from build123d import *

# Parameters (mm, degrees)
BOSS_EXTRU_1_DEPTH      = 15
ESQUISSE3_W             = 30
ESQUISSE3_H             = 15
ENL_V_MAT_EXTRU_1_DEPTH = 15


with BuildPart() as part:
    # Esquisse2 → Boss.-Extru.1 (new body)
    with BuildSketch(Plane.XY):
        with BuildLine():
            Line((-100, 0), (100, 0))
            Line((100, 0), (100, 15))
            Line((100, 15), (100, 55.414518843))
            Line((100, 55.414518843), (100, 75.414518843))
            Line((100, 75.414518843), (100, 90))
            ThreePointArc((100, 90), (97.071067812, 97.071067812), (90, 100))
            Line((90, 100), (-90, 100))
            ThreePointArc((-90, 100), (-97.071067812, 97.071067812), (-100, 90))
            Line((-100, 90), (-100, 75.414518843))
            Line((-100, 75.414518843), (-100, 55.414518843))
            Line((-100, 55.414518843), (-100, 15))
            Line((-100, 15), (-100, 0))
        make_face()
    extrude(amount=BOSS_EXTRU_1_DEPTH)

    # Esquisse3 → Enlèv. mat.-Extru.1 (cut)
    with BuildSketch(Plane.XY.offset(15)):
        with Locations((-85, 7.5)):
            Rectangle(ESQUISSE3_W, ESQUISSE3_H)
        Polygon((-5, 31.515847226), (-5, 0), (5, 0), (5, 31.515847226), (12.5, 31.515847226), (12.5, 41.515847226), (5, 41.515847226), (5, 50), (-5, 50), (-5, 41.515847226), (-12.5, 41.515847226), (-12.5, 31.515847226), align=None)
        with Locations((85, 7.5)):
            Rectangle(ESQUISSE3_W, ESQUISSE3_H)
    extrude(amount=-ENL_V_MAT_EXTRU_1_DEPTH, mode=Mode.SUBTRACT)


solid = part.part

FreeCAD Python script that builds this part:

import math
import FreeCAD as App
import Part
import Sketcher

doc = App.newDocument("Part")
body = doc.addObject("PartDesign::Body", "Body")

sketch1 = body.newObject("Sketcher::SketchObject", "Sketch")
sketch1.AttachmentSupport = (doc.getObject("XY_Plane"), [""])
sketch1.MapMode = "FlatFace"
sketch1.addGeometry(Part.LineSegment(App.Vector(-100, 0, 0), App.Vector(100, 0, 0)), False)
sketch1.addGeometry(Part.LineSegment(App.Vector(100, 0, 0), App.Vector(100, 90, 0)), False)
sketch1.addGeometry(Part.ArcOfCircle(Part.Circle(App.Vector(90, 90, 0), App.Vector(0, 0, 1), 10), math.radians(0), math.radians(90)), False)
sketch1.addGeometry(Part.LineSegment(App.Vector(90, 100, 0), App.Vector(-90, 100, 0)), False)
sketch1.addGeometry(Part.ArcOfCircle(Part.Circle(App.Vector(-90, 90, 0), App.Vector(0, 0, 1), 10), math.radians(90), math.radians(180)), False)
sketch1.addGeometry(Part.LineSegment(App.Vector(-100, 90, 0), App.Vector(-100, 0, 0)), False)
sketch1.addConstraint(Sketcher.Constraint("Coincident", 0, 2, 1, 1))
sketch1.addConstraint(Sketcher.Constraint("Tangent", 1, 2, 2, 1))
sketch1.addConstraint(Sketcher.Constraint("Tangent", 2, 2, 3, 1))
sketch1.addConstraint(Sketcher.Constraint("Tangent", 3, 2, 4, 1))
sketch1.addConstraint(Sketcher.Constraint("Tangent", 4, 2, 5, 1))
sketch1.addConstraint(Sketcher.Constraint("Coincident", 5, 2, 0, 1))
sketch1.addConstraint(Sketcher.Constraint("Horizontal", 0))
sketch1.addConstraint(Sketcher.Constraint("Vertical", 1))
sketch1.addConstraint(Sketcher.Constraint("Horizontal", 3))
sketch1.addConstraint(Sketcher.Constraint("Vertical", 5))
sketch1.addConstraint(Sketcher.Constraint("Equal", 2, 4))
sketch1.addConstraint(Sketcher.Constraint("Symmetric", 0, 2, 5, 2, -1, 1))
sketch1.addConstraint(Sketcher.Constraint("Radius", 2, 10.0))
sketch1.addConstraint(Sketcher.Constraint("DistanceX", 0, 1, 0, 2, 200.0))
sketch1.addConstraint(Sketcher.Constraint("DistanceY", 1, 1, 1, 2, 90.0))
pad1 = body.newObject("PartDesign::Pad", "Pad")
pad1.Profile = sketch1
pad1.Length = 15

sketch2 = body.newObject("Sketcher::SketchObject", "Sketch001")
sketch2.AttachmentSupport = (doc.getObject("XY_Plane"), [""])
sketch2.MapMode = "FlatFace"
sketch2.AttachmentOffset = App.Placement(App.Vector(0, 0, 15), App.Rotation())
sketch2.addGeometry(Part.LineSegment(App.Vector(-100, 15, 0), App.Vector(-100, 0, 0)), False)
sketch2.addGeometry(Part.LineSegment(App.Vector(-100, 0, 0), App.Vector(-70, 0, 0)), False)
sketch2.addGeometry(Part.LineSegment(App.Vector(-70, 0, 0), App.Vector(-70, 15, 0)), False)
sketch2.addGeometry(Part.LineSegment(App.Vector(-70, 15, 0), App.Vector(-100, 15, 0)), False)
sketch2.addGeometry(Part.LineSegment(App.Vector(-5, 31.515847, 0), App.Vector(-5, 0, 0)), False)
sketch2.addGeometry(Part.LineSegment(App.Vector(-5, 0, 0), App.Vector(5, 0, 0)), False)
sketch2.addGeometry(Part.LineSegment(App.Vector(5, 0, 0), App.Vector(5, 31.515847, 0)), False)
sketch2.addGeometry(Part.LineSegment(App.Vector(5, 31.515847, 0), App.Vector(12.5, 31.515847, 0)), False)
sketch2.addGeometry(Part.LineSegment(App.Vector(12.5, 31.515847, 0), App.Vector(12.5, 41.515847, 0)), False)
sketch2.addGeometry(Part.LineSegment(App.Vector(12.5, 41.515847, 0), App.Vector(5, 41.515847, 0)), False)
sketch2.addGeometry(Part.LineSegment(App.Vector(5, 41.515847, 0), App.Vector(5, 50, 0)), False)
sketch2.addGeometry(Part.LineSegment(App.Vector(5, 50, 0), App.Vector(-5, 50, 0)), False)
sketch2.addGeometry(Part.LineSegment(App.Vector(-5, 50, 0), App.Vector(-5, 41.515847, 0)), False)
sketch2.addGeometry(Part.LineSegment(App.Vector(-5, 41.515847, 0), App.Vector(-12.5, 41.515847, 0)), False)
sketch2.addGeometry(Part.LineSegment(App.Vector(-12.5, 41.515847, 0), App.Vector(-12.5, 31.515847, 0)), False)
sketch2.addGeometry(Part.LineSegment(App.Vector(-12.5, 31.515847, 0), App.Vector(-5, 31.515847, 0)), False)
sketch2.addGeometry(Part.LineSegment(App.Vector(70, 15, 0), App.Vector(70, 0, 0)), False)
sketch2.addGeometry(Part.LineSegment(App.Vector(70, 0, 0), App.Vector(100, 0, 0)), False)
sketch2.addGeometry(Part.LineSegment(App.Vector(100, 0, 0), App.Vector(100, 15, 0)), False)
sketch2.addGeometry(Part.LineSegment(App.Vector(100, 15, 0), App.Vector(70, 15, 0)), False)
sketch2.addConstraint(Sketcher.Constraint("Coincident", 0, 2, 1, 1))
sketch2.addConstraint(Sketcher.Constraint("Coincident", 1, 2, 2, 1))
sketch2.addConstraint(Sketcher.Constraint("Coincident", 2, 2, 3, 1))
sketch2.addConstraint(Sketcher.Constraint("Coincident", 3, 2, 0, 1))
sketch2.addConstraint(Sketcher.Constraint("Coincident", 4, 2, 5, 1))
sketch2.addConstraint(Sketcher.Constraint("Coincident", 5, 2, 6, 1))
sketch2.addConstraint(Sketcher.Constraint("Coincident", 6, 2, 7, 1))
sketch2.addConstraint(Sketcher.Constraint("Coincident", 7, 2, 8, 1))
sketch2.addConstraint(Sketcher.Constraint("Coincident", 8, 2, 9, 1))
sketch2.addConstraint(Sketcher.Constraint("Coincident", 9, 2, 10, 1))
sketch2.addConstraint(Sketcher.Constraint("Coincident", 10, 2, 11, 1))
sketch2.addConstraint(Sketcher.Constraint("Coincident", 11, 2, 12, 1))
sketch2.addConstraint(Sketcher.Constraint("Coincident", 12, 2, 13, 1))
sketch2.addConstraint(Sketcher.Constraint("Coincident", 13, 2, 14, 1))
sketch2.addConstraint(Sketcher.Constraint("Coincident", 14, 2, 15, 1))
sketch2.addConstraint(Sketcher.Constraint("Coincident", 15, 2, 4, 1))
sketch2.addConstraint(Sketcher.Constraint("Coincident", 16, 2, 17, 1))
sketch2.addConstraint(Sketcher.Constraint("Coincident", 17, 2, 18, 1))
sketch2.addConstraint(Sketcher.Constraint("Coincident", 18, 2, 19, 1))
sketch2.addConstraint(Sketcher.Constraint("Coincident", 19, 2, 16, 1))
sketch2.addConstraint(Sketcher.Constraint("Vertical", 0))
sketch2.addConstraint(Sketcher.Constraint("Horizontal", 1))
sketch2.addConstraint(Sketcher.Constraint("Vertical", 2))
sketch2.addConstraint(Sketcher.Constraint("Horizontal", 3))
sketch2.addConstraint(Sketcher.Constraint("Vertical", 4))
sketch2.addConstraint(Sketcher.Constraint("Horizontal", 5))
sketch2.addConstraint(Sketcher.Constraint("Vertical", 6))
sketch2.addConstraint(Sketcher.Constraint("Horizontal", 7))
sketch2.addConstraint(Sketcher.Constraint("Vertical", 8))
sketch2.addConstraint(Sketcher.Constraint("Horizontal", 9))
sketch2.addConstraint(Sketcher.Constraint("Vertical", 10))
sketch2.addConstraint(Sketcher.Constraint("Horizontal", 11))
sketch2.addConstraint(Sketcher.Constraint("Vertical", 12))
sketch2.addConstraint(Sketcher.Constraint("Horizontal", 13))
sketch2.addConstraint(Sketcher.Constraint("Vertical", 14))
sketch2.addConstraint(Sketcher.Constraint("Horizontal", 15))
sketch2.addConstraint(Sketcher.Constraint("Vertical", 16))
sketch2.addConstraint(Sketcher.Constraint("Horizontal", 17))
sketch2.addConstraint(Sketcher.Constraint("Vertical", 18))
sketch2.addConstraint(Sketcher.Constraint("Horizontal", 19))
sketch2.addConstraint(Sketcher.Constraint("Symmetric", 4, 2, 5, 2, -1, 1))
sketch2.addConstraint(Sketcher.Constraint("Symmetric", 1, 2, 16, 2, -1, 1))
sketch2.addConstraint(Sketcher.Constraint("Symmetric", 9, 2, 12, 2, -2))
sketch2.addConstraint(Sketcher.Constraint("Symmetric", 7, 2, 14, 2, -2))
sketch2.addConstraint(Sketcher.Constraint("Symmetric", 0, 2, 17, 2, -2))
sketch2.addConstraint(Sketcher.Constraint("Horizontal", 3, 2, 18, 2))
sketch2.addConstraint(Sketcher.Constraint("Vertical", 6, 2, 9, 2))
sketch2.addConstraint(Sketcher.Constraint("Equal", 11, 8))
sketch2.addConstraint(Sketcher.Constraint("DistanceX", 1, 1, 1, 2, 30.0))
sketch2.addConstraint(Sketcher.Constraint("DistanceX", 5, 1, 5, 2, 10.0))
sketch2.addConstraint(Sketcher.Constraint("DistanceY", 0, 2, 0, 1, 15.0))
sketch2.addConstraint(Sketcher.Constraint("DistanceX", 7, 1, 7, 2, 7.5))
sketch2.addConstraint(Sketcher.Constraint("DistanceX", 0, 2, -1, 1, 100.0))
sketch2.addConstraint(Sketcher.Constraint("DistanceY", -1, 1, 10, 2, 50.0))
sketch2.addConstraint(Sketcher.Constraint("DistanceY", 4, 2, 4, 1, 31.515847))
pocket1 = body.newObject("PartDesign::Pocket", "Pocket")
pocket1.Profile = sketch2
pocket1.Length = 15

doc.recompute()
